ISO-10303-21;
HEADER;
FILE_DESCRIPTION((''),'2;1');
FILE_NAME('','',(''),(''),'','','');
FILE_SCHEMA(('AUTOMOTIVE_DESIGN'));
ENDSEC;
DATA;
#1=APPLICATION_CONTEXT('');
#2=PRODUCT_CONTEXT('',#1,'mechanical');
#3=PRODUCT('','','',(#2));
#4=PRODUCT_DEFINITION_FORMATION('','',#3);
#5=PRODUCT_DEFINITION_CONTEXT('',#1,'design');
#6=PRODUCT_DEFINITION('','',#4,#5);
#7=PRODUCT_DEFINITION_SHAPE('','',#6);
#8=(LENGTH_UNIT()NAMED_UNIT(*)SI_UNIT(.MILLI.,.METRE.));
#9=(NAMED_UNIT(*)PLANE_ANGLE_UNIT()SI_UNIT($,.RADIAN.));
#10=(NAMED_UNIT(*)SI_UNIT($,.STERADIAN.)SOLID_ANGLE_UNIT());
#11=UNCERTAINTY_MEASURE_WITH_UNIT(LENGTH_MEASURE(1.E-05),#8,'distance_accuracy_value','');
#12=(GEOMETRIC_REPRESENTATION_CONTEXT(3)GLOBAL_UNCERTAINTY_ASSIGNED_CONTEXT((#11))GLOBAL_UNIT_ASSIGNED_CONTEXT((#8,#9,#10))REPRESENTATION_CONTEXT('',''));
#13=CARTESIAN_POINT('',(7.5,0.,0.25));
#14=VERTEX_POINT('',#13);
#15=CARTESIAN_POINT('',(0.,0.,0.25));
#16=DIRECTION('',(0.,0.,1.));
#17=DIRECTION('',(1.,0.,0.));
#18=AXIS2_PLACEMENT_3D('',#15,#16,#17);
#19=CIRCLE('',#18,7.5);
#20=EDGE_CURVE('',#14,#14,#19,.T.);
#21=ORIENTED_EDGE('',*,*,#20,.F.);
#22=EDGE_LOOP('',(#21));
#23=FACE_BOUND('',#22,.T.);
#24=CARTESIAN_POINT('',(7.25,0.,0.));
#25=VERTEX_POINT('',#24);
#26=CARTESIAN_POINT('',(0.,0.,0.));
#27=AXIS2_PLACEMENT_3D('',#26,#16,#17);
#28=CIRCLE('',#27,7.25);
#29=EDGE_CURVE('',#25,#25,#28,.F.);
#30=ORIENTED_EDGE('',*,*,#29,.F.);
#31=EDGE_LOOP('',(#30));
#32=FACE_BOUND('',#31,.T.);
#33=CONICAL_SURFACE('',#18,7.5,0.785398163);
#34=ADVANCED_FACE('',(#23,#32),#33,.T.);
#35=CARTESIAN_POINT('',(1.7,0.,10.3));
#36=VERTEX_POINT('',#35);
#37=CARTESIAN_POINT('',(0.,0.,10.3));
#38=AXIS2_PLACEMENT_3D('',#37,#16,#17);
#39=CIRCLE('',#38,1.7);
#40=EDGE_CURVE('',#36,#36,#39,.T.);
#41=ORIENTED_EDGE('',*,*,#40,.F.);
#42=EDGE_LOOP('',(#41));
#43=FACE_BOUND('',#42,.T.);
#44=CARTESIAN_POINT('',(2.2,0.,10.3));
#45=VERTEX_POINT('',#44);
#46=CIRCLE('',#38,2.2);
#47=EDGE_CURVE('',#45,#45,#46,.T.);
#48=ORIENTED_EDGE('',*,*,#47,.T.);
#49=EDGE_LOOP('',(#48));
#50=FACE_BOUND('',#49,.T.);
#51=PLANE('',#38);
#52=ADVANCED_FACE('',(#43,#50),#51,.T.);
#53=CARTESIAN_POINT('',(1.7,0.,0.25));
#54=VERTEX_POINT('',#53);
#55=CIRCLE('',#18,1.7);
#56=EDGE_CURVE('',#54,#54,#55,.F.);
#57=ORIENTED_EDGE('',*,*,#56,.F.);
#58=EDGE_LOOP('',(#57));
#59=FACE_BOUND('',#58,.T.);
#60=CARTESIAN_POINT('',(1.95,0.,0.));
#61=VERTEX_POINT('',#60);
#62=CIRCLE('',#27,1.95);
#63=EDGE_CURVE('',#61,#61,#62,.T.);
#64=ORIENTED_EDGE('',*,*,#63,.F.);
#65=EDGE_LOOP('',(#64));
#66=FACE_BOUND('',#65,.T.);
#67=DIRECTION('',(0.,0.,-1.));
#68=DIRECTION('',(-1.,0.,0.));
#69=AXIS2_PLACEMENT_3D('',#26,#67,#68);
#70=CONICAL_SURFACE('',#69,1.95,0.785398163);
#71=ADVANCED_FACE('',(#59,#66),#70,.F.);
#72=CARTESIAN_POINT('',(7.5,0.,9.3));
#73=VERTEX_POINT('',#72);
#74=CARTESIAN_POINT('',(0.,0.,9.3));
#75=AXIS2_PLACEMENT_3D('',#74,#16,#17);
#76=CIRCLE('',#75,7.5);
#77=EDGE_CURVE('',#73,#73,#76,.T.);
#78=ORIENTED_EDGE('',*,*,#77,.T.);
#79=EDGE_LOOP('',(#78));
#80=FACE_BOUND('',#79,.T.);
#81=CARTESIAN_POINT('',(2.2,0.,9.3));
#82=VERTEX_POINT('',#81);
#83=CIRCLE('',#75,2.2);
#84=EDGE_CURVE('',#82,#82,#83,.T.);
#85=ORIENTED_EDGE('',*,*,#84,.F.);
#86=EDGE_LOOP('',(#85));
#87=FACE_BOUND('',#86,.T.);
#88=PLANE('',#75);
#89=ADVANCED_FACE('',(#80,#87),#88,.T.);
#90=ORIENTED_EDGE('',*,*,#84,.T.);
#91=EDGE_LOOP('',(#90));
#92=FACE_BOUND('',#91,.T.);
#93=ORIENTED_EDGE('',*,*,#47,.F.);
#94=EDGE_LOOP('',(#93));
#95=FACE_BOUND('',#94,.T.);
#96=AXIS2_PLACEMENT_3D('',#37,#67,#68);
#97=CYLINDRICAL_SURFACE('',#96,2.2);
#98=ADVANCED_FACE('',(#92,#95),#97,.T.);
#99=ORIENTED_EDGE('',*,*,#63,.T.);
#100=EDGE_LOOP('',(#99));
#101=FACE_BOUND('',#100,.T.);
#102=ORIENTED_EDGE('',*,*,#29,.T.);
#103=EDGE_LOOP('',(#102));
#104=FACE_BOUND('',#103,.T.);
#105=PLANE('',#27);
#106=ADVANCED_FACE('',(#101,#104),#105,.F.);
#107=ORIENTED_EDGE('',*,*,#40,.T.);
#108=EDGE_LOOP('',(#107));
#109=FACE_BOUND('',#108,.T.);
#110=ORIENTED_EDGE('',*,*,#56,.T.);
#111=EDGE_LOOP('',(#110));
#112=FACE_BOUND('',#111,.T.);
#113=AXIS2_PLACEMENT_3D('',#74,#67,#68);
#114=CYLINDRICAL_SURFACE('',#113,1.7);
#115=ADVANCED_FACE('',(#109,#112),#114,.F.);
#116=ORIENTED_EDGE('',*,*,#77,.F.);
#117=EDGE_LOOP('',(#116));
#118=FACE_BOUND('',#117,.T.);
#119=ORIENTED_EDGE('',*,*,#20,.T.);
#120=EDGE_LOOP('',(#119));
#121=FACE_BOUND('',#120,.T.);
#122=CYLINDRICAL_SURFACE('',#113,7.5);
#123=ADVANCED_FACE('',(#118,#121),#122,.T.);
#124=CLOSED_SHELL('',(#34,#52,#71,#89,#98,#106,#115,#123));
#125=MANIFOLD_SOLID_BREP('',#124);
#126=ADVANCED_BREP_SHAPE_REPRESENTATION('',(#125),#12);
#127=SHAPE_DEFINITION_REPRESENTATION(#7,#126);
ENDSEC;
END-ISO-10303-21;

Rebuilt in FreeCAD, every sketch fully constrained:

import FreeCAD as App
import Part
import Sketcher
Q = App.Units.Quantity


def edges_at(feature, points):
    """Names of the edges that pass closest to the given points."""
    edges = feature.Shape.Edges
    near = lambda p: min(range(len(edges)), key=lambda i: edges[i].distToShape(Part.Vertex(*p))[0])
    return sorted({f"Edge{near(p) + 1}" for p in points})

doc = App.newDocument("Part")
body = doc.addObject("PartDesign::Body", "Body")

# Sketch on XY plane
sketch1 = body.newObject("Sketcher::SketchObject", "Sketch")
sketch1.AttachmentSupport = (doc.getObject("XY_Plane"), [""])
sketch1.MapMode = "FlatFace"
sketch1.addGeometry(Part.Circle(App.Vector(0, 0, 0), App.Vector(0, 0, 1), 7.5), False)
sketch1.addGeometry(Part.Circle(App.Vector(0, 0, 0), App.Vector(0, 0, 1), 1.7), False)
sketch1.addConstraint(Sketcher.Constraint("Coincident", 0, 3, -1, 1))
sketch1.addConstraint(Sketcher.Constraint("Coincident", 1, 3, -1, 1))
sketch1.addConstraint(Sketcher.Constraint("Diameter", 0, Q("15 mm")))
sketch1.addConstraint(Sketcher.Constraint("Diameter", 1, Q("3.4 mm")))
pad1 = body.newObject("PartDesign::Pad", "Pad")
pad1.Profile = sketch1
pad1.Length = 9.3

# Sketch on XY plane
sketch2 = body.newObject("Sketcher::SketchObject", "Sketch001")
sketch2.AttachmentSupport = (doc.getObject("XY_Plane"), [""])
sketch2.MapMode = "FlatFace"
sketch2.AttachmentOffset = App.Placement(App.Vector(0, 0, 9.3), App.Rotation())
sketch2.addGeometry(Part.Circle(App.Vector(0, 0, 0), App.Vector(0, 0, 1), 2.2), False)
sketch2.addGeometry(Part.Circle(App.Vector(0, 0, 0), App.Vector(0, 0, 1), 1.7), False)
sketch2.addConstraint(Sketcher.Constraint("Coincident", 0, 3, -1, 1))
sketch2.addConstraint(Sketcher.Constraint("Coincident", 1, 3, -1, 1))
sketch2.addConstraint(Sketcher.Constraint("Diameter", 0, Q("4.4 mm")))
sketch2.addConstraint(Sketcher.Constraint("Diameter", 1, Q("3.4 mm")))
pad2 = body.newObject("PartDesign::Pad", "Pad001")
pad2.Profile = sketch2
pad2.Length = 1
doc.recompute()

chamfer = body.newObject("PartDesign::Chamfer", "Chamfer")
chamfer.Base = (pad2, edges_at(pad2, [(-7.5, 0, 0), (-1.7, 0, 0)]))
chamfer.Size = 0.25

doc.recompute()
